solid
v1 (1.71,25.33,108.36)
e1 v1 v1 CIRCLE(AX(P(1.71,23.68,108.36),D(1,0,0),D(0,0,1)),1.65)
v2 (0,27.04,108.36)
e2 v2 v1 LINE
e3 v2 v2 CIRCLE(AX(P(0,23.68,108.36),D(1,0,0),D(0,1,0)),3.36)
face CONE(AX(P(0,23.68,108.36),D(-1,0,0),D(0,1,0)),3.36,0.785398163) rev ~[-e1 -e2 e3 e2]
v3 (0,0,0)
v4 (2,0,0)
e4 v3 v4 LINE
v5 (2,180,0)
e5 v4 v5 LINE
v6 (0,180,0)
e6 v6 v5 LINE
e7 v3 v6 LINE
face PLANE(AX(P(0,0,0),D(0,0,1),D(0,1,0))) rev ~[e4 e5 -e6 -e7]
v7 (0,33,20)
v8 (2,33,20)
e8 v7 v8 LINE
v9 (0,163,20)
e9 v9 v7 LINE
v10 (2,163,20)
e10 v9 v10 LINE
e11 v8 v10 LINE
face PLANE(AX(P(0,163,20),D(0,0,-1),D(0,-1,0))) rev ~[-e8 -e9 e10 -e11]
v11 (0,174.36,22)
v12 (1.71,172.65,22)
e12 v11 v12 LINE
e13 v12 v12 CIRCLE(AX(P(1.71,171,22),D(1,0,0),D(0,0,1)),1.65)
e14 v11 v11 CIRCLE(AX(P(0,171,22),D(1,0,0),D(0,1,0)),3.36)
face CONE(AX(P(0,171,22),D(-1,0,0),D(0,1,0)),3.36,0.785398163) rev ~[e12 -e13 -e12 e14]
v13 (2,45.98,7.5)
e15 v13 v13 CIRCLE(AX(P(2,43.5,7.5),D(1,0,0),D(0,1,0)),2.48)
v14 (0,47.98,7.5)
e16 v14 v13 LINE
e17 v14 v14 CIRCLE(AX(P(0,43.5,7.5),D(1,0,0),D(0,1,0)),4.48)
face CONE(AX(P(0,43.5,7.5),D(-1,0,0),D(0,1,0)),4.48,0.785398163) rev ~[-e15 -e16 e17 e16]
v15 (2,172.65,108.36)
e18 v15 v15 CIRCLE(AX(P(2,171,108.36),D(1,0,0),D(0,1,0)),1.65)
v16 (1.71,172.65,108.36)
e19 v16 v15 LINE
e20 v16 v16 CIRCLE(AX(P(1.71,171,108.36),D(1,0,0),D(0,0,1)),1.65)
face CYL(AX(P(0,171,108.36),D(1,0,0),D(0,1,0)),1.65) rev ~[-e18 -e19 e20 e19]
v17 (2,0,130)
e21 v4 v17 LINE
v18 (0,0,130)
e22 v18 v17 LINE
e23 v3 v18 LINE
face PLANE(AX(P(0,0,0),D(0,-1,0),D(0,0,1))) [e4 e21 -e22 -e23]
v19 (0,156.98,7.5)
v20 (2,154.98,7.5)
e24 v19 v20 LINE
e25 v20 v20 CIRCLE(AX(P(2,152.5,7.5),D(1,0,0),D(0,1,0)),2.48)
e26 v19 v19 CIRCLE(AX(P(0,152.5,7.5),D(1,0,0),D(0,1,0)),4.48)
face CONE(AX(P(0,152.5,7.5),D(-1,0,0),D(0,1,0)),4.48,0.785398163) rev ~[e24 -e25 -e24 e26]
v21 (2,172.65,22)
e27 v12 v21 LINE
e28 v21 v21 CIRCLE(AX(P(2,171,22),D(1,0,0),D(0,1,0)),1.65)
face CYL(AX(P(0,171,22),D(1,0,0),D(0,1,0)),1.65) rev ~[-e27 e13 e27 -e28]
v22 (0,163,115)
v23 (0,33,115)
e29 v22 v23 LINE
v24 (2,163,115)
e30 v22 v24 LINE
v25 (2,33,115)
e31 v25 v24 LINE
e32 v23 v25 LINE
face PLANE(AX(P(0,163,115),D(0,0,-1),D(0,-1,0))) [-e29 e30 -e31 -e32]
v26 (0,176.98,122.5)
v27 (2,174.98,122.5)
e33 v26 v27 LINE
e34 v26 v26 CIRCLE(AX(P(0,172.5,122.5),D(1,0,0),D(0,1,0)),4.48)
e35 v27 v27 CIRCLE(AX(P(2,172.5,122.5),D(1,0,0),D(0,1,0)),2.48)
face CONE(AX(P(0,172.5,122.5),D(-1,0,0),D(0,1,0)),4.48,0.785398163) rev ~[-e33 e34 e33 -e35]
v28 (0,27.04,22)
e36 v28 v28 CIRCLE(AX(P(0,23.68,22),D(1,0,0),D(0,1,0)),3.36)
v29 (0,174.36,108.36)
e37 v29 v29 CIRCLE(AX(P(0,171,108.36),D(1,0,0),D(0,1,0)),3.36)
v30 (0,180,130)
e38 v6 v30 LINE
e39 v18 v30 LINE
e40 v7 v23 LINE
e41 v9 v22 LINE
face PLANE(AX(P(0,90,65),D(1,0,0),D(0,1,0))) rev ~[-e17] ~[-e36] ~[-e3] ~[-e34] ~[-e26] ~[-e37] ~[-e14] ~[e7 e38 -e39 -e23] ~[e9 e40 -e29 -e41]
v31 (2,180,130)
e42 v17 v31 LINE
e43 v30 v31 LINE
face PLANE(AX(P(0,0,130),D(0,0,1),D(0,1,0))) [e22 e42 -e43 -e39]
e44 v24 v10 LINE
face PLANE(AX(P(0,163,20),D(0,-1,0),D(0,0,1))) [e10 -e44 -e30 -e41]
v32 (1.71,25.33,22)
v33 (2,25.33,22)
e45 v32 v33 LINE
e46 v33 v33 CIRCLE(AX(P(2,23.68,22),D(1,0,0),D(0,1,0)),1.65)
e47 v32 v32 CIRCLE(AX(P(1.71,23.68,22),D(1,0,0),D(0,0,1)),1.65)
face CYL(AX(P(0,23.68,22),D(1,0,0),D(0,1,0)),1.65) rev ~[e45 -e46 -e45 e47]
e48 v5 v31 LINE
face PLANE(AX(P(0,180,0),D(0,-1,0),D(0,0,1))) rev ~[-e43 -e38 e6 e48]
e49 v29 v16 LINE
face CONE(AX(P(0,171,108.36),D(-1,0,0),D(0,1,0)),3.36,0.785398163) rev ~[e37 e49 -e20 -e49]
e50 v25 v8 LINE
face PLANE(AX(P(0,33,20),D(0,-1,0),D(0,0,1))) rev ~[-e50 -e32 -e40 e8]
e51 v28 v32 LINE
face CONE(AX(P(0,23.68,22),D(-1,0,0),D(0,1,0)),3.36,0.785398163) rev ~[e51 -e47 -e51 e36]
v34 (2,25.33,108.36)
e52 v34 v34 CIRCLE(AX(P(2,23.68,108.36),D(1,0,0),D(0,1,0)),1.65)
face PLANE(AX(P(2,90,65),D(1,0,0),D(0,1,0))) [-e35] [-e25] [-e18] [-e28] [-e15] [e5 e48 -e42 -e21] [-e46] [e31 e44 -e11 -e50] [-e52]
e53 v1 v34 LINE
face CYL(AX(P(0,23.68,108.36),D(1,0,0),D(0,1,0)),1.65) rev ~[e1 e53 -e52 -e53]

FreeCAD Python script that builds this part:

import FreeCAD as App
import Part
import Sketcher
Q = App.Units.Quantity


def add_polygon(sketch, points):
    """Adds a closed chain of lines whose ends are joined by coincident constraints."""
    first, n = sketch.GeometryCount, len(points)
    for a, b in zip(points, points[1:] + points[:1]):
        sketch.addGeometry(Part.LineSegment(App.Vector(*a, 0), App.Vector(*b, 0)), False)
    for i in range(n):
        sketch.addConstraint(Sketcher.Constraint("Coincident", first + i, 2, first + (i + 1) % n, 1))

doc = App.newDocument("Part")
params = doc.addObject("Spreadsheet::Sheet", "Params")
for row, (alias, value) in enumerate([
    ("sketch1_width", "180 mm"),
    ("sketch1_height", "130 mm"),
    ("pad1_length", "2 mm"),
    ("sketch2_diameter", "3.3 mm"),
    ("hole_diameter", "3.3 mm"),
    ("hole_csink_diameter", "6.72 mm"),
    ("sketch3_width", "130 mm"),
    ("sketch3_height", "95 mm"),
    ("sketch4_diameter", "4.4 mm"),
    ("hole2_diameter", "4.4 mm"),
    ("hole2_csink_diameter", "8.96 mm"),
], start=1):
    params.set(f"A{row}", alias)
    params.set(f"B{row}", "=" + value)
    params.setAlias(f"B{row}", alias)

body = doc.addObject("PartDesign::Body", "Body")

# Sketch on YZ plane
sketch1 = doc.addObject("Sketcher::SketchObject", "Sketch")
body.addObject(sketch1)
sketch1.AttachmentSupport = (doc.YZ_Plane, [""])
sketch1.MapMode = "FlatFace"
add_polygon(sketch1, [(0, 130), (0, 0), (180, 0), (180, 130)])  # lines 0-3
sketch1.addConstraint(Sketcher.Constraint("Vertical", 0))
sketch1.addConstraint(Sketcher.Constraint("Horizontal", 1))
sketch1.addConstraint(Sketcher.Constraint("Vertical", 2))
sketch1.addConstraint(Sketcher.Constraint("Horizontal", 3))
sketch1.addConstraint(Sketcher.Constraint("Coincident", 0, 2, -1, 1))
sketch1.addConstraint(Sketcher.Constraint("DistanceX", 1, 1, 1, 2, Q("180 mm")))
sketch1.addConstraint(Sketcher.Constraint("DistanceY", 0, 2, 0, 1, Q("130 mm")))
sketch1.setExpression("Constraints[9]", "Params.sketch1_width")
sketch1.setExpression("Constraints[10]", "Params.sketch1_height")
pad1 = doc.addObject("PartDesign::Pad", "Pad")
body.addObject(pad1)
pad1.Profile = sketch1
pad1.setExpression("Length", "Params.pad1_length")

# Sketch on YZ plane
sketch2 = doc.addObject("Sketcher::SketchObject", "Sketch001")
body.addObject(sketch2)
sketch2.AttachmentSupport = (doc.YZ_Plane, [""])
sketch2.MapMode = "FlatFace"
sketch2.addGeometry(Part.Circle(App.Vector(171, 108.4, 0), App.Vector(0, 0, 1), 1.6), False)
sketch2.addGeometry(Part.Circle(App.Vector(171, 22, 0), App.Vector(0, 0, 1), 1.6), False)
sketch2.addGeometry(Part.Circle(App.Vector(23.7, 22, 0), App.Vector(0, 0, 1), 1.6), False)
sketch2.addGeometry(Part.Circle(App.Vector(23.7, 108.4, 0), App.Vector(0, 0, 1), 1.6), False)
sketch2.addConstraint(Sketcher.Constraint("Equal", 0, 1))
sketch2.addConstraint(Sketcher.Constraint("Equal", 1, 2))
sketch2.addConstraint(Sketcher.Constraint("Equal", 2, 3))
sketch2.addConstraint(Sketcher.Constraint("Horizontal", 1, 3, 2, 3))
sketch2.addConstraint(Sketcher.Constraint("Horizontal", 0, 3, 3, 3))
sketch2.addConstraint(Sketcher.Constraint("Vertical", 0, 3, 1, 3))
sketch2.addConstraint(Sketcher.Constraint("Vertical", 2, 3, 3, 3))
sketch2.addConstraint(Sketcher.Constraint("Diameter", 0, Q("3.3 mm")))
sketch2.addConstraint(Sketcher.Constraint("DistanceX", -1, 1, 0, 3, Q("171 mm")))
sketch2.addConstraint(Sketcher.Constraint("DistanceY", -1, 1, 1, 3, Q("22 mm")))
sketch2.addConstraint(Sketcher.Constraint("DistanceY", -1, 1, 0, 3, Q("108.36 mm")))
sketch2.addConstraint(Sketcher.Constraint("DistanceX", -1, 1, 2, 3, Q("23.68 mm")))
sketch2.setExpression("Constraints[7]", "Params.sketch2_diameter")
doc.recompute()
hole = doc.addObject("PartDesign::Hole", "Hole")
body.addObject(hole)
hole.Profile = sketch2
hole.ThreadType = "None"
hole.setExpression("Diameter", "Params.hole_diameter")
hole.DepthType = "ThroughAll"
hole.HoleCutType = "Countersink"
hole.setExpression("HoleCutDiameter", "Params.hole_csink_diameter")
hole.HoleCutCountersinkAngle = 90
hole.Reversed = True

# Sketch on YZ plane
sketch3 = doc.addObject("Sketcher::SketchObject", "Sketch002")
body.addObject(sketch3)
sketch3.AttachmentSupport = (doc.YZ_Plane, [""])
sketch3.MapMode = "FlatFace"
add_polygon(sketch3, [(163, 115), (163, 20), (33, 20), (33, 115)])  # lines 0-3
sketch3.addConstraint(Sketcher.Constraint("Vertical", 0))
sketch3.addConstraint(Sketcher.Constraint("Horizontal", 1))
sketch3.addConstraint(Sketcher.Constraint("Vertical", 2))
sketch3.addConstraint(Sketcher.Constraint("Horizontal", 3))
sketch3.addConstraint(Sketcher.Constraint("DistanceX", 1, 2, 1, 1, Q("130 mm")))
sketch3.addConstraint(Sketcher.Constraint("DistanceY", 0, 2, 0, 1, Q("95 mm")))
sketch3.addConstraint(Sketcher.Constraint("DistanceX", -1, 1, 0, 2, Q("163 mm")))
sketch3.addConstraint(Sketcher.Constraint("DistanceY", -1, 1, 0, 2, Q("20 mm")))
sketch3.setExpression("Constraints[8]", "Params.sketch3_width")
sketch3.setExpression("Constraints[9]", "Params.sketch3_height")
pocket1 = doc.addObject("PartDesign::Pocket", "Pocket")
body.addObject(pocket1)
pocket1.Profile = sketch3
pocket1.Type = "ThroughAll"
pocket1.Reversed = True

# Sketch on YZ plane
sketch4 = doc.addObject("Sketcher::SketchObject", "Sketch003")
body.addObject(sketch4)
sketch4.AttachmentSupport = (doc.YZ_Plane, [""])
sketch4.MapMode = "FlatFace"
sketch4.addGeometry(Part.Circle(App.Vector(152.5, 7.5, 0), App.Vector(0, 0, 1), 2.2), False)
sketch4.addGeometry(Part.Circle(App.Vector(43.5, 7.5, 0), App.Vector(0, 0, 1), 2.2), False)
sketch4.addGeometry(Part.Circle(App.Vector(172.5, 122.5, 0), App.Vector(0, 0, 1), 2.2), False)
sketch4.addConstraint(Sketcher.Constraint("Equal", 0, 1))
sketch4.addConstraint(Sketcher.Constraint("Equal", 1, 2))
sketch4.addConstraint(Sketcher.Constraint("Horizontal", 0, 3, 1, 3))
sketch4.addConstraint(Sketcher.Constraint("Diameter", 0, Q("4.4 mm")))
sketch4.addConstraint(Sketcher.Constraint("DistanceX", 1, 3, 0, 3, Q("109 mm")))
sketch4.addConstraint(Sketcher.Constraint("DistanceX", 0, 3, 2, 3, Q("20 mm")))
sketch4.addConstraint(Sketcher.Constraint("DistanceY", 0, 3, 2, 3, Q("115 mm")))
sketch4.addConstraint(Sketcher.Constraint("DistanceX", -1, 1, 0, 3, Q("152.5 mm")))
sketch4.addConstraint(Sketcher.Constraint("DistanceY", -1, 1, 0, 3, Q("7.5 mm")))
sketch4.setExpression("Constraints[3]", "Params.sketch4_diameter")
doc.recompute()
hole2 = doc.addObject("PartDesign::Hole", "Hole001")
body.addObject(hole2)
hole2.Profile = sketch4
hole2.ThreadType = "None"
hole2.setExpression("Diameter", "Params.hole2_diameter")
hole2.DepthType = "ThroughAll"
hole2.HoleCutType = "Countersink"
hole2.setExpression("HoleCutDiameter", "Params.hole2_csink_diameter")
hole2.HoleCutCountersinkAngle = 90
hole2.Reversed = True

doc.recompute()
